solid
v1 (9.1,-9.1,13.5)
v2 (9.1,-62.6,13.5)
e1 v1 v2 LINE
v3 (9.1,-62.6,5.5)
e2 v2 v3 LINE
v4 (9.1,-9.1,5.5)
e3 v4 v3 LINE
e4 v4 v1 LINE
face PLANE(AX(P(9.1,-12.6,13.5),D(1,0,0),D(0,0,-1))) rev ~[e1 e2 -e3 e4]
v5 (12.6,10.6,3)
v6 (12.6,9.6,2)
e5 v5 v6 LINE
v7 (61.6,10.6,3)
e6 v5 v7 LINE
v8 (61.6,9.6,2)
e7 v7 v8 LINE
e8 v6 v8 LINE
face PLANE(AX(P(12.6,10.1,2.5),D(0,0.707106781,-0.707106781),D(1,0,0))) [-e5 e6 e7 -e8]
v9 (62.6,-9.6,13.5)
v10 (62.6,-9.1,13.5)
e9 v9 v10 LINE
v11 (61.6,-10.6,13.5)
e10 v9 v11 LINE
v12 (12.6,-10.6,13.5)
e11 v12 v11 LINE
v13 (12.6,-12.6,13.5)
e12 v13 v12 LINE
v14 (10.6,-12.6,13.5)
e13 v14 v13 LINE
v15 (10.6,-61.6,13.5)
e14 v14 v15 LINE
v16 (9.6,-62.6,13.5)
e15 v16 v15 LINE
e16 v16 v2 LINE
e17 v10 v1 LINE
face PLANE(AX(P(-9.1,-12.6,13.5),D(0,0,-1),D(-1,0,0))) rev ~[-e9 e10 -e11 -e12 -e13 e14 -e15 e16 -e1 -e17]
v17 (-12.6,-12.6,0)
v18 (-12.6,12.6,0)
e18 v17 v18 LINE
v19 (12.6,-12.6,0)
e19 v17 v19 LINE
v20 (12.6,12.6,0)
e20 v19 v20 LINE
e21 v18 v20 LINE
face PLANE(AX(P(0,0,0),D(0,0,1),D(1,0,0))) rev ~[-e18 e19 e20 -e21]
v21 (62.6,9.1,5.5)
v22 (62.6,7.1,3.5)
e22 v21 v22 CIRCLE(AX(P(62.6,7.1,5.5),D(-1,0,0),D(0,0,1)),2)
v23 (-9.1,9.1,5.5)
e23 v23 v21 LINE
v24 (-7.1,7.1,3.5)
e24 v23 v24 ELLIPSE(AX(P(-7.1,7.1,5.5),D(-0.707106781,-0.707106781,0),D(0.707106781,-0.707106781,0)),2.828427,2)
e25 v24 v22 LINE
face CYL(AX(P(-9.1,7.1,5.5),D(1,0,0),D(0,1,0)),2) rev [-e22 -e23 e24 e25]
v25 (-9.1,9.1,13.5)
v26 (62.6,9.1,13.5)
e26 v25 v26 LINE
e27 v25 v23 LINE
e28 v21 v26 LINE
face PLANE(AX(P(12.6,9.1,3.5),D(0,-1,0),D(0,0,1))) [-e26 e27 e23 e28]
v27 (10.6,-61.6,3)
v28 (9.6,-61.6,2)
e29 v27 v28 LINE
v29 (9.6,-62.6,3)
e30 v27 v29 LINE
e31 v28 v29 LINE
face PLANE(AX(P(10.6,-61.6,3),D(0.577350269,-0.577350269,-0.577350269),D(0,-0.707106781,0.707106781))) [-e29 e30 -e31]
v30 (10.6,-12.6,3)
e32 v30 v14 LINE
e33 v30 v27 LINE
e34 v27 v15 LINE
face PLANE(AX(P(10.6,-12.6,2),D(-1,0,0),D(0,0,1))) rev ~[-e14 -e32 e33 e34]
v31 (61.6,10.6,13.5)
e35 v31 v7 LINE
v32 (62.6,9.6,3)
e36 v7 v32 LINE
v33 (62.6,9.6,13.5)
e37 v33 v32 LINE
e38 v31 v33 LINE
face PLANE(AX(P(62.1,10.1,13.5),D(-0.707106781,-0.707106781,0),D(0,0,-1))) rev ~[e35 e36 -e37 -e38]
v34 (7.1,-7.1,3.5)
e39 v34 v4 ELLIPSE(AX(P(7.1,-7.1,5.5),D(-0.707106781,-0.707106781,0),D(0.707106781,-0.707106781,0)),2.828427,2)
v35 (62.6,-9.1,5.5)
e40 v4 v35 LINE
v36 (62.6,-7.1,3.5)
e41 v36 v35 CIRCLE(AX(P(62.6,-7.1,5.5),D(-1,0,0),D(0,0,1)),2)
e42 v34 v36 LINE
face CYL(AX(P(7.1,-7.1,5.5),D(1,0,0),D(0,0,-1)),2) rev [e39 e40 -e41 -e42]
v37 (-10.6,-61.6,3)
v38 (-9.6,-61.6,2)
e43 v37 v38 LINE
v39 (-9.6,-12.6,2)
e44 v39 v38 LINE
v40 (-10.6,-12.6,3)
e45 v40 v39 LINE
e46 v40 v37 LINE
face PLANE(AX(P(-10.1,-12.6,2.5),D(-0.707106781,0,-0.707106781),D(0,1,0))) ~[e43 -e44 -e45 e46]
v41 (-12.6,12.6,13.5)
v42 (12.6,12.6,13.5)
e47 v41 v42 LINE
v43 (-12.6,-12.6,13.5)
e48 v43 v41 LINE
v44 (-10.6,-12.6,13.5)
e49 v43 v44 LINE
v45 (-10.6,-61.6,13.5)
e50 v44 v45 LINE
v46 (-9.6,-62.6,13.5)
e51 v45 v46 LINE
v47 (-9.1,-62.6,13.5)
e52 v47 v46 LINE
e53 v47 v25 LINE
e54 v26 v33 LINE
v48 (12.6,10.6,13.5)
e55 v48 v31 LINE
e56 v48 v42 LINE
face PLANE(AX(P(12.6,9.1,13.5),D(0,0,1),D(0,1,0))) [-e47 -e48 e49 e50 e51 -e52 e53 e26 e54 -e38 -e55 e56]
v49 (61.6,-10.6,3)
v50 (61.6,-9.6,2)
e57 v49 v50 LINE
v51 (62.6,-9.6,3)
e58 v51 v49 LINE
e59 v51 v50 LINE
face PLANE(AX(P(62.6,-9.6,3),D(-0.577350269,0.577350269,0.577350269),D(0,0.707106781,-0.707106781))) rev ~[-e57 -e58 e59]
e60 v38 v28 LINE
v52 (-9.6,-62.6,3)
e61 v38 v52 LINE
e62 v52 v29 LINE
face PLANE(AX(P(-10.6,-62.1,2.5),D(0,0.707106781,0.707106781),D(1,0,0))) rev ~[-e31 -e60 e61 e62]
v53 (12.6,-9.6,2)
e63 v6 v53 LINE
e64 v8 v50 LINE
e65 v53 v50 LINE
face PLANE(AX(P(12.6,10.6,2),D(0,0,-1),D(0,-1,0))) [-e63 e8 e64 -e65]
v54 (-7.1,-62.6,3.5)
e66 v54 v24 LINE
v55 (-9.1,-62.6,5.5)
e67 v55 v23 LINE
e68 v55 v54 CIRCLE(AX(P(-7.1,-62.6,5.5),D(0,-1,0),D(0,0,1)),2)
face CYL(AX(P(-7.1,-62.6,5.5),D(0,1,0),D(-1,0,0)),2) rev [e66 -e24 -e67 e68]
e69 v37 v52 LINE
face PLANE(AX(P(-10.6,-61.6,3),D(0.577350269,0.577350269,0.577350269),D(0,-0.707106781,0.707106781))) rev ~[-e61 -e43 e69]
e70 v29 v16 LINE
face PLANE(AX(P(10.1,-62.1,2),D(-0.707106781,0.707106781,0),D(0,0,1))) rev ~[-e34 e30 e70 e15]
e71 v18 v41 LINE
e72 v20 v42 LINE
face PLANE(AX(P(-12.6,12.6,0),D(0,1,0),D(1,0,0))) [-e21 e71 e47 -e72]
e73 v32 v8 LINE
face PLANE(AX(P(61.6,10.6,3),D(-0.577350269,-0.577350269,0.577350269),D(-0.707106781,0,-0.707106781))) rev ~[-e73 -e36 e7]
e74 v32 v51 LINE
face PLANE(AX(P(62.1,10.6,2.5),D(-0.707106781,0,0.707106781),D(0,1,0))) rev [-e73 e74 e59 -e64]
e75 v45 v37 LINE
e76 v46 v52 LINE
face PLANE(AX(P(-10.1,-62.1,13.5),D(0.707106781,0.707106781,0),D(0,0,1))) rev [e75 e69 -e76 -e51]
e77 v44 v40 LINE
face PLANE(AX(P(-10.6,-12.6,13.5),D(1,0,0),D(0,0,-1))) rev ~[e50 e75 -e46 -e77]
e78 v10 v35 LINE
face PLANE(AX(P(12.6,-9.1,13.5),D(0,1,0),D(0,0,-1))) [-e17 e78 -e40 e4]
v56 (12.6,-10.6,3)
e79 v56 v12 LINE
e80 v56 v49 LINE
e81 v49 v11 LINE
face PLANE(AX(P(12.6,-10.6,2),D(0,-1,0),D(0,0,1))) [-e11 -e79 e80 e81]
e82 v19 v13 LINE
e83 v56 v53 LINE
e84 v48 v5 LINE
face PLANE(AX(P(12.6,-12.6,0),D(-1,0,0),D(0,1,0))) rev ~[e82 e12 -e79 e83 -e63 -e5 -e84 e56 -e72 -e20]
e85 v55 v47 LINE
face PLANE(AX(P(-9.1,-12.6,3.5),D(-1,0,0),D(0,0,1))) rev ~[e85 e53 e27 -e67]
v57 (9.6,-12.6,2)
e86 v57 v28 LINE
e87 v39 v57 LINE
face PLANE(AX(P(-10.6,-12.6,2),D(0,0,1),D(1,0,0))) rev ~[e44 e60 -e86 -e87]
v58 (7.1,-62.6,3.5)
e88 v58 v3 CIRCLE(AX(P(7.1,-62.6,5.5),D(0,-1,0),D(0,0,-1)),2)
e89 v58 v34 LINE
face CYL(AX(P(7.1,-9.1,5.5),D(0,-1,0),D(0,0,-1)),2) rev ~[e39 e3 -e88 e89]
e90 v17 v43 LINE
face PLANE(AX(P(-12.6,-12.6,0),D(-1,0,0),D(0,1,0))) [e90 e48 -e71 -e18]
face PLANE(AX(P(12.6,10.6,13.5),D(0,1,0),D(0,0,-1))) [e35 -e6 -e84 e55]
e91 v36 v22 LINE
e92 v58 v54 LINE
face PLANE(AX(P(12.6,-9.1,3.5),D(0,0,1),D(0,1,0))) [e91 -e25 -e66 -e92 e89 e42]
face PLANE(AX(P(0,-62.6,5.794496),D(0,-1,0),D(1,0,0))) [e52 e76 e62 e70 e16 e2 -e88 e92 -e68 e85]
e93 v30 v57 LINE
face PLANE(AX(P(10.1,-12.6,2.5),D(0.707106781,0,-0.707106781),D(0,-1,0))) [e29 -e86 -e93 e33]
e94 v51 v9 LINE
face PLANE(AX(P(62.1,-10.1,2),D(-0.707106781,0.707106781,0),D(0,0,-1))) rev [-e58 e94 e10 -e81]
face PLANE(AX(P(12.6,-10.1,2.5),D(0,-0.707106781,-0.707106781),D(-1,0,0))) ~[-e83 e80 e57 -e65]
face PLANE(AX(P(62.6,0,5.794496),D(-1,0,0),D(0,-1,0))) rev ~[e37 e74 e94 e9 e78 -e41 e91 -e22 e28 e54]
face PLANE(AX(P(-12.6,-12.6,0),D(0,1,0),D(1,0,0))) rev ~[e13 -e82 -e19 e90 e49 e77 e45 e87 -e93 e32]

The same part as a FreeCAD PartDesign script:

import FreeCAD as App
import Part
import Sketcher

V = App.Vector
Q = App.Units.Quantity


def edges_at(feature, points):
    """Names of the edges that pass closest to the given points."""
    edges = feature.Shape.Edges
    near = lambda p: min(range(len(edges)), key=lambda i: edges[i].distToShape(Part.Vertex(*p))[0])
    return sorted({f"Edge{near(p) + 1}" for p in points})


def faces_at(feature, points):
    """Names of the faces that lie closest to the given points."""
    faces = feature.Shape.Faces
    near = lambda p: min(range(len(faces)), key=lambda i: faces[i].distToShape(Part.Vertex(*p))[0])
    return sorted({f"Face{near(p) + 1}" for p in points})


def add_polygon(sketch, points):
    """Adds a closed chain of lines whose ends are joined by coincident constraints."""
    first, n = sketch.GeometryCount, len(points)
    for a, b in zip(points, points[1:] + points[:1]):
        sketch.addGeometry(Part.LineSegment(App.Vector(*a, 0), App.Vector(*b, 0)), False)
    for i in range(n):
        sketch.addConstraint(Sketcher.Constraint("Coincident", first + i, 2, first + (i + 1) % n, 1))

doc = App.newDocument("Part")
body = doc.addObject("PartDesign::Body", "Body")

# Sketch on XY plane
sketch1 = body.newObject("Sketcher::SketchObject", "Sketch")
sketch1.AttachmentSupport = (doc.getObject("XY_Plane"), [""])
sketch1.MapMode = "FlatFace"
add_polygon(sketch1, [(-12.6, 12.6), (-12.6, -12.6), (12.6, -12.6), (12.6, 12.6)])  # lines 0-3
sketch1.addConstraint([
    Sketcher.Constraint("Vertical", 0),
    Sketcher.Constraint("Horizontal", 1),
    Sketcher.Constraint("Vertical", 2),
    Sketcher.Constraint("Horizontal", 3),
    Sketcher.Constraint("Symmetric", 0, 2, 2, 2, -1, 1),
    Sketcher.Constraint("Equal", 3, 0),
    Sketcher.Constraint("DistanceX", 1, 1, 1, 2, Q("25.2 mm")),
])
pad1 = body.newObject("PartDesign::Pad", "Pad")
pad1.Profile = sketch1
pad1.Length = 13.5
doc.recompute()

thickness = body.newObject("PartDesign::Thickness", "Thickness")
thickness.Base = (pad1, faces_at(pad1, [(0, 0, 13.5)]))
thickness.Value = 3.5
thickness.Reversed = True
thickness.Join = "Intersection"

# Sketch on XZ plane
sketch2 = body.newObject("Sketcher::SketchObject", "Sketch001")
sketch2.AttachmentSupport = (doc.getObject("XZ_Plane"), [""])
sketch2.MapMode = "FlatFace"
sketch2.AttachmentOffset = App.Placement(V(0, 0, 12.6), App.Rotation())
add_polygon(sketch2, [(-9.1, 13.5), (-9.1, 3.5), (9.1, 3.5), (9.1, 13.5)])  # lines 0-3
sketch2.addConstraint([
    Sketcher.Constraint("Vertical", 0),
    Sketcher.Constraint("Horizontal", 1),
    Sketcher.Constraint("Vertical", 2),
    Sketcher.Constraint("Horizontal", 3),
    Sketcher.Constraint("DistanceY", 0, 2, 0, 1, Q("10 mm")),
    Sketcher.Constraint("DistanceX", 1, 1, 1, 2, Q("18.2 mm")),
    Sketcher.Constraint("DistanceX", 0, 2, -1, 1, Q("9.1 mm")),
    Sketcher.Constraint("DistanceY", -1, 1, 0, 2, Q("3.5 mm")),
])
pocket1 = body.newObject("PartDesign::Pocket", "Pocket")
pocket1.Profile = sketch2
pocket1.Length = 3.5

# Sketch on XZ plane
sketch3 = body.newObject("Sketcher::SketchObject", "Sketch002")
sketch3.AttachmentSupport = (doc.getObject("XZ_Plane"), [""])
sketch3.MapMode = "FlatFace"
sketch3.AttachmentOffset = App.Placement(V(0, 0, 12.6), App.Rotation())
add_polygon(sketch3, [(-10.6, 13.5), (-10.6, 2), (10.6, 2), (10.6, 13.5), (9.1, 13.5), (9.1, 3.5), (-9.1, 3.5), (-9.1, 13.5)])  # lines 0-7
sketch3.addConstraint([
    Sketcher.Constraint("Vertical", 0),
    Sketcher.Constraint("Horizontal", 1),
    Sketcher.Constraint("Vertical", 2),
    Sketcher.Constraint("Horizontal", 3),
    Sketcher.Constraint("Vertical", 4),
    Sketcher.Constraint("Horizontal", 5),
    Sketcher.Constraint("Vertical", 6),
    Sketcher.Constraint("Horizontal", 7),
    Sketcher.Constraint("Symmetric", 3, 2, 6, 2, -2),
    Sketcher.Constraint("Equal", 3, 7),
    Sketcher.Constraint("DistanceY", 4, 2, 4, 1, Q("10 mm")),
    Sketcher.Constraint("DistanceX", 1, 1, 1, 2, Q("21.2 mm")),
    Sketcher.Constraint("DistanceX", 3, 2, 3, 1, Q("1.5 mm")),
    Sketcher.Constraint("DistanceY", 0, 2, 0, 1, Q("11.5 mm")),
    Sketcher.Constraint("DistanceY", -1, 1, 0, 2, Q("2 mm")),
])
pad2 = body.newObject("PartDesign::Pad", "Pad001")
pad2.Profile = sketch3
pad2.Length = 50
doc.recompute()

chamfer = body.newObject("PartDesign::Chamfer", "Chamfer")
chamfer.Base = (pad2, edges_at(pad2, [
    (0, -62.6, 2),
    (10.6, -37.6, 2),
    (-10.6, -37.6, 2),
    (10.6, -62.6, 7.75),
    (-10.6, -62.6, 7.75),
]))
chamfer.Size = 1

# Sketch on YZ plane
sketch4 = body.newObject("Sketcher::SketchObject", "Sketch003")
sketch4.AttachmentSupport = (doc.getObject("YZ_Plane"), [""])
sketch4.MapMode = "FlatFace"
sketch4.AttachmentOffset = App.Placement(V(0, 0, 12.6), App.Rotation())
add_polygon(sketch4, [(-9.1, 13.5), (-9.1, 3.5), (9.1, 3.5), (9.1, 13.5)])  # lines 0-3
sketch4.addConstraint([
    Sketcher.Constraint("Vertical", 0),
    Sketcher.Constraint("Horizontal", 1),
    Sketcher.Constraint("Vertical", 2),
    Sketcher.Constraint("Horizontal", 3),
    Sketcher.Constraint("DistanceY", 0, 2, 0, 1, Q("10 mm")),
    Sketcher.Constraint("DistanceX", 1, 1, 1, 2, Q("18.2 mm")),
    Sketcher.Constraint("DistanceX", 0, 2, -1, 1, Q("9.1 mm")),
    Sketcher.Constraint("DistanceY", -1, 1, 0, 2, Q("3.5 mm")),
])
pocket2 = body.newObject("PartDesign::Pocket", "Pocket001")
pocket2.Profile = sketch4
pocket2.Length = 3.5

# Sketch on YZ plane
sketch5 = body.newObject("Sketcher::SketchObject", "Sketch004")
sketch5.AttachmentSupport = (doc.getObject("YZ_Plane"), [""])
sketch5.MapMode = "FlatFace"
sketch5.AttachmentOffset = App.Placement(V(0, 0, 12.6), App.Rotation())
add_polygon(sketch5, [(10.6, 2), (10.6, 13.5), (9.1, 13.5), (9.1, 3.5), (-9.1, 3.5), (-9.1, 13.5), (-10.6, 13.5), (-10.6, 2)])  # lines 0-7
sketch5.addConstraint([
    Sketcher.Constraint("Vertical", 0),
    Sketcher.Constraint("Horizontal", 1),
    Sketcher.Constraint("Vertical", 2),
    Sketcher.Constraint("Horizontal", 3),
    Sketcher.Constraint("Vertical", 4),
    Sketcher.Constraint("Horizontal", 5),
    Sketcher.Constraint("Vertical", 6),
    Sketcher.Constraint("Horizontal", 7),
    Sketcher.Constraint("Symmetric", 1, 2, 4, 2, -2),
    Sketcher.Constraint("Equal", 1, 5),
    Sketcher.Constraint("DistanceY", 2, 2, 2, 1, Q("10 mm")),
    Sketcher.Constraint("DistanceX", 1, 2, 1, 1, Q("1.5 mm")),
    Sketcher.Constraint("DistanceX", 3, 2, 3, 1, Q("18.2 mm")),
    Sketcher.Constraint("DistanceY", 0, 1, 0, 2, Q("11.5 mm")),
    Sketcher.Constraint("DistanceY", -1, 1, 6, 2, Q("2 mm")),
])
pad3 = body.newObject("PartDesign::Pad", "Pad002")
pad3.Profile = sketch5
pad3.Length = 50
doc.recompute()

chamfer2 = body.newObject("PartDesign::Chamfer", "Chamfer001")
chamfer2.Base = (pad3, edges_at(pad3, [
    (37.6, -10.6, 2),
    (62.6, -10.6, 7.75),
    (62.6, 0, 2),
    (62.6, 10.6, 7.75),
    (37.6, 10.6, 2),
]))
chamfer2.Size = 1
doc.recompute()

fillet = body.newObject("PartDesign::Fillet", "Fillet")
fillet.Base = (chamfer2, edges_at(chamfer2, [
    (26.75, 9.1, 3.5),
    (26.75, 9.1, 3.5),
    (26.75, 9.1, 3.5),
    (-9.1, -26.75, 3.5),
    (-9.1, -26.75, 3.5),
    (-9.1, -26.75, 3.5),
]))
fillet.Radius = 2
doc.recompute()

fillet2 = body.newObject("PartDesign::Fillet", "Fillet001")
fillet2.Base = (fillet, edges_at(fillet, [(9.1, -35.85, 3.5)]))
fillet2.Radius = 2
doc.recompute()

fillet3 = body.newObject("PartDesign::Fillet", "Fillet002")
fillet3.Base = (fillet2, edges_at(fillet2, [(34.85, -9.1, 3.5)]))
fillet3.Radius = 2

doc.recompute()
